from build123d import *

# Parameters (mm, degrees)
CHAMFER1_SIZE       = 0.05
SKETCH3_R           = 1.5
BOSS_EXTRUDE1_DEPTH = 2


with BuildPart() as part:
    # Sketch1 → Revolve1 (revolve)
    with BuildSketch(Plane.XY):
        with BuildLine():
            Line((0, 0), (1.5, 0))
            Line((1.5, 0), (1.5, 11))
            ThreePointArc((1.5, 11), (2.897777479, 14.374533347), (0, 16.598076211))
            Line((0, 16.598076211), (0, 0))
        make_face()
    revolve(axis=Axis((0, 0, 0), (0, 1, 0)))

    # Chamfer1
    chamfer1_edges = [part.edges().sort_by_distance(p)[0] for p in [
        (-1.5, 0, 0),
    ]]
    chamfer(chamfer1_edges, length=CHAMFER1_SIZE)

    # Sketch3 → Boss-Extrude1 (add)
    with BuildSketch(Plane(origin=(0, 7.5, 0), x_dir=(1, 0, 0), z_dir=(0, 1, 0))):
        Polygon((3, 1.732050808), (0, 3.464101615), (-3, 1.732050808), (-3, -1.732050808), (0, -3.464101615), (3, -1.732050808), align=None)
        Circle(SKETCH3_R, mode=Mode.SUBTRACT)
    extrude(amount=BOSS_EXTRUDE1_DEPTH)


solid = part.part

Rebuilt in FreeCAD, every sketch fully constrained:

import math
import FreeCAD as App
import Part
import Sketcher
from FreeCAD import Vector
Q = App.Units.Quantity


def edges_at(feature, points):
    """Names of the edges that pass closest to the given points."""
    edges = feature.Shape.Edges
    near = lambda p: min(range(len(edges)), key=lambda i: edges[i].distToShape(Part.Vertex(*p))[0])
    return sorted({f"Edge{near(p) + 1}" for p in points})


def add_polygon(sketch, points):
    """Adds a closed chain of lines whose ends are joined by coincident constraints."""
    first, n = sketch.GeometryCount, len(points)
    for a, b in zip(points, points[1:] + points[:1]):
        sketch.addGeometry(Part.LineSegment(App.Vector(*a, 0), App.Vector(*b, 0)), False)
    for i in range(n):
        sketch.addConstraint(Sketcher.Constraint("Coincident", first + i, 2, first + (i + 1) % n, 1))

doc = App.newDocument("Part")
body = doc.addObject("PartDesign::Body", "Body")

# Sketch on XY plane
sketch1 = doc.addObject("Sketcher::SketchObject", "Sketch")
body.addObject(sketch1)
sketch1.AttachmentSupport = (doc.XY_Plane, [""])
sketch1.MapMode = "FlatFace"
sketch1.addGeometry(Part.LineSegment(Vector(0, 0, 0), Vector(1.5, 0, 0)), False)
sketch1.addGeometry(Part.LineSegment(Vector(1.5, 0, 0), Vector(1.5, 11, 0)), False)
sketch1.addGeometry(Part.ArcOfCircle(Part.Circle(Vector(0, 13.598076, 0), Vector(0, 0, 1), 3), math.radians(-60), math.radians(90)), False)
sketch1.addGeometry(Part.LineSegment(Vector(0, 16.598076, 0), Vector(0, 0, 0)), False)
sketch1.addConstraint(Sketcher.Constraint("Coincident", 0, 2, 1, 1))
sketch1.addConstraint(Sketcher.Constraint("Coincident", 1, 2, 2, 1))
sketch1.addConstraint(Sketcher.Constraint("Coincident", 2, 2, 3, 1))
sketch1.addConstraint(Sketcher.Constraint("Coincident", 3, 2, 0, 1))
sketch1.addConstraint(Sketcher.Constraint("Horizontal", 0))
sketch1.addConstraint(Sketcher.Constraint("Vertical", 1))
sketch1.addConstraint(Sketcher.Constraint("Vertical", 3))
sketch1.addConstraint(Sketcher.Constraint("Coincident", 3, 2, -1, 1))
sketch1.addConstraint(Sketcher.Constraint("PointOnObject", 2, 3, -2))
sketch1.addConstraint(Sketcher.Constraint("Radius", 2, 3.0))
sketch1.addConstraint(Sketcher.Constraint("DistanceY", 1, 1, 1, 2, 11.0))
sketch1.addConstraint(Sketcher.Constraint("DistanceX", 0, 1, 0, 2, 1.5))
revolution = doc.addObject("PartDesign::Revolution", "Revolution")
body.addObject(revolution)
revolution.Profile = sketch1
revolution.ReferenceAxis = (sketch1, ["V_Axis"])
revolution.Angle = 360
doc.recompute()

chamfer = doc.addObject("PartDesign::Chamfer", "Chamfer")
body.addObject(chamfer)
chamfer.Base = (revolution, edges_at(revolution, [(-1.5, 0, 0)]))
chamfer.Size = 0.05

# Sketch on XZ plane
sketch2 = doc.addObject("Sketcher::SketchObject", "Sketch001")
body.addObject(sketch2)
sketch2.AttachmentSupport = (doc.XZ_Plane, [""])
sketch2.MapMode = "FlatFace"
sketch2.AttachmentOffset = App.Placement(Vector(0, 0, -7.5), App.Rotation())
add_polygon(sketch2, [(3, -1.732051), (0, -3.464102), (-3, -1.732051), (-3, 1.732051), (0, 3.464102), (3, 1.732051)])  # lines 0-5
sketch2.addGeometry(Part.Circle(Vector(0, 0, 0), Vector(0, 0, 1), 1.5), False)  # 6
sketch2.addConstraint(Sketcher.Constraint("Vertical", 2))
sketch2.addConstraint(Sketcher.Constraint("Vertical", 5))
sketch2.addConstraint(Sketcher.Constraint("Coincident", 6, 3, -1, 1))
sketch2.addConstraint(Sketcher.Constraint("Symmetric", 0, 2, 3, 2, -1, 1))
sketch2.addConstraint(Sketcher.Constraint("Symmetric", 1, 2, 4, 2, -1, 1))
sketch2.addConstraint(Sketcher.Constraint("PointOnObject", 0, 2, -2))
sketch2.addConstraint(Sketcher.Constraint("Parallel", 0, 3))
sketch2.addConstraint(Sketcher.Constraint("Horizontal", 2, 2, 4, 2))
sketch2.addConstraint(Sketcher.Constraint("Diameter", 6, 3.0))
sketch2.addConstraint(Sketcher.Constraint("Angle", 0, Q("-150 deg")))
sketch2.addConstraint(Sketcher.Constraint("DistanceX", 1, 2, -1, 1, 3.0))
sketch2.addConstraint(Sketcher.Constraint("DistanceY", 2, 1, 2, 2, 3.464102))
pad1 = doc.addObject("PartDesign::Pad", "Pad")
body.addObject(pad1)
pad1.Profile = sketch2
pad1.Length = 2
pad1.Reversed = True

doc.recompute()
